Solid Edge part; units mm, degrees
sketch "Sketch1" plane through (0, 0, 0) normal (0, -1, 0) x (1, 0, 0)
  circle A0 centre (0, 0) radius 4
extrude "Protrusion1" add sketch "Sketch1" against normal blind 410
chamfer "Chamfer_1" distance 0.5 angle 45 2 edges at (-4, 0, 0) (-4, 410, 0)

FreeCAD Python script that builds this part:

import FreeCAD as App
import Part
import Sketcher


def edges_at(feature, points):
    """Names of the edges that pass closest to the given points."""
    edges = feature.Shape.Edges
    near = lambda p: min(range(len(edges)), key=lambda i: edges[i].distToShape(Part.Vertex(*p))[0])
    return sorted({f"Edge{near(p) + 1}" for p in points})

doc = App.newDocument("Part")
body = doc.addObject("PartDesign::Body", "Body")

sketch1 = body.newObject("Sketcher::SketchObject", "Sketch")
sketch1.AttachmentSupport = (doc.getObject("XZ_Plane"), [""])
sketch1.MapMode = "FlatFace"
sketch1.addGeometry(Part.Circle(App.Vector(0, 0, 0), App.Vector(0, 0, 1), 4), False)
sketch1.addConstraint([
    Sketcher.Constraint("Coincident", 0, 3, -1, 1),
    Sketcher.Constraint("Diameter", 0, 8.0),
])
pad1 = body.newObject("PartDesign::Pad", "Pad")
pad1.Profile = sketch1
pad1.Length = 410
pad1.Reversed = True
doc.recompute()

chamfer = body.newObject("PartDesign::Chamfer", "Chamfer")
chamfer.Base = (pad1, edges_at(pad1, [(-4, 0, 0), (-4, 410, 0)]))
chamfer.Size = 0.5

doc.recompute()
